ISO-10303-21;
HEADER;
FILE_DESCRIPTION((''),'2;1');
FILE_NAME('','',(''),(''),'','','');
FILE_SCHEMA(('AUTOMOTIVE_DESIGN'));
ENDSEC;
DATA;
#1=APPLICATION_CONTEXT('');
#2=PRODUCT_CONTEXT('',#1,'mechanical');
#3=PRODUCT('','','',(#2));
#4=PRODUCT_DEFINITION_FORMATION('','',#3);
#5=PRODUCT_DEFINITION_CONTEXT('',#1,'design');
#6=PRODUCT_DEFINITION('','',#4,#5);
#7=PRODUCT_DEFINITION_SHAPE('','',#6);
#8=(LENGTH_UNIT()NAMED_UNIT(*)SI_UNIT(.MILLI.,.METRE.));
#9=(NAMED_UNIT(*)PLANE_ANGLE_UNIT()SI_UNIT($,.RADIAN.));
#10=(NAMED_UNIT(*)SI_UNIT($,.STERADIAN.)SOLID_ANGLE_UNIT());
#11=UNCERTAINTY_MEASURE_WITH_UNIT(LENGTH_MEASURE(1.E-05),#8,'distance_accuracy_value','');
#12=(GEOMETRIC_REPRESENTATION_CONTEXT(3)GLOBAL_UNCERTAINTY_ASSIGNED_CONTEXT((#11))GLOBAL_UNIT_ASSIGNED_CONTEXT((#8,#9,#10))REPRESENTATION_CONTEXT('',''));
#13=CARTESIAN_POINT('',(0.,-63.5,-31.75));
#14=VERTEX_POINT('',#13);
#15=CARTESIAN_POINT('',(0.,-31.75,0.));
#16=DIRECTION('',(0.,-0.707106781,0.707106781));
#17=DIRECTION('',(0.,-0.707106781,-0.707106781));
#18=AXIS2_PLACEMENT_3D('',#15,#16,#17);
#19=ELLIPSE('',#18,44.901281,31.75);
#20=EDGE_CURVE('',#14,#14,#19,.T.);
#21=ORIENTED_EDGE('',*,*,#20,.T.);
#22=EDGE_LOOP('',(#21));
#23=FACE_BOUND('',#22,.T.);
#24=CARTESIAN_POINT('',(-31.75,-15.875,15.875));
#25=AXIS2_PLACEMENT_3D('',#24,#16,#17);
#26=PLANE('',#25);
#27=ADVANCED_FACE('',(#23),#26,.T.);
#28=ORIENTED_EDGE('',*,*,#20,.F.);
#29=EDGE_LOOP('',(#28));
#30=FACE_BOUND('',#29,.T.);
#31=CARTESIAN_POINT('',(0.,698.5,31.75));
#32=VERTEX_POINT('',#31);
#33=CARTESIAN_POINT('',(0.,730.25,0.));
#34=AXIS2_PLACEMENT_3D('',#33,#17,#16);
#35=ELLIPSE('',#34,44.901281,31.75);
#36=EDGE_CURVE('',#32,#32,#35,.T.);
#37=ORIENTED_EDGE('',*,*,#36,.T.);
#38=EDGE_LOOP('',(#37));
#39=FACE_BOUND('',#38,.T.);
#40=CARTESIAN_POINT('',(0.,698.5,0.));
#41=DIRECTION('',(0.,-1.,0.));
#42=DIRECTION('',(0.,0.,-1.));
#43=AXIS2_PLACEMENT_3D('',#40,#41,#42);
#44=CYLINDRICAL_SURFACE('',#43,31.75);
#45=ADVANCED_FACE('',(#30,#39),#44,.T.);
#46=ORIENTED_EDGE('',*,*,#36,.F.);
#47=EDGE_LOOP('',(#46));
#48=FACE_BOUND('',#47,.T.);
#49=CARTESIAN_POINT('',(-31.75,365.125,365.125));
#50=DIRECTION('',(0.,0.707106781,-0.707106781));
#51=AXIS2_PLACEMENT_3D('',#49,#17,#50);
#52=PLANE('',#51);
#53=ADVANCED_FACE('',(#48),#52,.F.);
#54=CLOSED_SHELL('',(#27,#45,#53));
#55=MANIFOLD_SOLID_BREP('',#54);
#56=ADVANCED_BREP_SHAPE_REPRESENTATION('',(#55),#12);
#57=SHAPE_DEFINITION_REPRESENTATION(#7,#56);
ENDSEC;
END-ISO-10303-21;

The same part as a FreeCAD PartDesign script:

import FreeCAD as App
import Part
import Sketcher

V = App.Vector
Q = App.Units.Quantity

doc = App.newDocument("Part")
body = doc.addObject("PartDesign::Body", "Body")

# Sketch on XZ plane
sketch1 = body.newObject("Sketcher::SketchObject", "Sketch")
sketch1.AttachmentSupport = (doc.getObject("XZ_Plane"), [""])
sketch1.MapMode = "FlatFace"
sketch1.addGeometry(Part.Circle(V(0, 0, 0), V(0, 0, 1), 32), False)
sketch1.addConstraint([
    Sketcher.Constraint("Coincident", 0, 3, -1, 1),
    Sketcher.Constraint("Diameter", 0, Q("2.5 in")),
])
pad1 = body.newObject("PartDesign::Pad", "Pad")
pad1.Profile = sketch1
pad1.Length = Q("27.5 in")
pad1.Reversed = True

# Sketch on XZ plane
sketch2 = body.newObject("Sketcher::SketchObject", "Sketch001")
sketch2.AttachmentSupport = (doc.getObject("XZ_Plane"), [""])
sketch2.MapMode = "FlatFace"
sketch2.AttachmentOffset = App.Placement(V(0, 0, -27.5 * 25.4), App.Rotation())
sketch2.addGeometry(Part.Circle(V(0, 0, 0), V(0, 0, 1), 32), False)
sketch2.addConstraint([
    Sketcher.Constraint("Coincident", 0, 3, -1, 1),
    Sketcher.Constraint("Diameter", 0, Q("2.5 in")),
])
pad2 = body.newObject("PartDesign::Pad", "Pad001")
pad2.Profile = sketch2
pad2.Length = Q("2.5 in")
pad2.Reversed = True

# Sketch on XZ plane
sketch3 = body.newObject("Sketcher::SketchObject", "Sketch002")
sketch3.AttachmentSupport = (doc.getObject("XZ_Plane"), [""])
sketch3.MapMode = "FlatFace"
sketch3.addGeometry(Part.Circle(V(0, 0, 0), V(0, 0, 1), 32), False)
sketch3.addConstraint([
    Sketcher.Constraint("Coincident", 0, 3, -1, 1),
    Sketcher.Constraint("Diameter", 0, Q("2.5 in")),
])
pad3 = body.newObject("PartDesign::Pad", "Pad002")
pad3.Profile = sketch3
pad3.Length = Q("2.5 in")

# Sketch on YZ plane
sketch4 = body.newObject("Sketcher::SketchObject", "Sketch003")
sketch4.AttachmentSupport = (doc.getObject("YZ_Plane"), [""])
sketch4.MapMode = "FlatFace"
sketch4.AttachmentOffset = App.Placement(V(0, 0, 1.25 * 25.4), App.Rotation())
sketch4.addGeometry([
    Part.LineSegment(V(762, 32, 0), V(698, 32, 0)),  # 0
    Part.LineSegment(V(698, 32, 0), V(762, -32, 0)),  # 1
    Part.LineSegment(V(762, -32, 0), V(762, 32, 0)),  # 2
    Part.LineSegment(V(-64, -32, 0), V(0, 32, 0)),  # 3
    Part.LineSegment(V(0, 32, 0), V(-64, 32, 0)),  # 4
    Part.LineSegment(V(-64, 32, 0), V(-64, -32, 0)),  # 5
], False)
sketch4.addConstraint([
    Sketcher.Constraint("Coincident", 0, 2, 1, 1),
    Sketcher.Constraint("Coincident", 1, 2, 2, 1),
    Sketcher.Constraint("Coincident", 2, 2, 0, 1),
    Sketcher.Constraint("Coincident", 3, 2, 4, 1),
    Sketcher.Constraint("Coincident", 4, 2, 5, 1),
    Sketcher.Constraint("Coincident", 5, 2, 3, 1),
    Sketcher.Constraint("Horizontal", 0),
    Sketcher.Constraint("Vertical", 2),
    Sketcher.Constraint("Horizontal", 4),
    Sketcher.Constraint("Vertical", 5),
    Sketcher.Constraint("PointOnObject", 3, 2, -2),
    Sketcher.Constraint("Perpendicular", 1, 3),
    Sketcher.Constraint("Horizontal", 2, 2, 3, 2),
    Sketcher.Constraint("Horizontal", 1, 2, 5, 2),
    Sketcher.Constraint("Equal", 0, 4),
    Sketcher.Constraint("DistanceX", 0, 2, 0, 1, Q("2.5 in")),
    Sketcher.Constraint("DistanceX", -1, 1, 1, 2, Q("30 in")),
    Sketcher.Constraint("DistanceY", -1, 1, 0, 2, Q("1.25 in")),
])
pocket1 = body.newObject("PartDesign::Pocket", "Pocket")
pocket1.Profile = sketch4
pocket1.Length = Q("2.5 in")

doc.recompute()
